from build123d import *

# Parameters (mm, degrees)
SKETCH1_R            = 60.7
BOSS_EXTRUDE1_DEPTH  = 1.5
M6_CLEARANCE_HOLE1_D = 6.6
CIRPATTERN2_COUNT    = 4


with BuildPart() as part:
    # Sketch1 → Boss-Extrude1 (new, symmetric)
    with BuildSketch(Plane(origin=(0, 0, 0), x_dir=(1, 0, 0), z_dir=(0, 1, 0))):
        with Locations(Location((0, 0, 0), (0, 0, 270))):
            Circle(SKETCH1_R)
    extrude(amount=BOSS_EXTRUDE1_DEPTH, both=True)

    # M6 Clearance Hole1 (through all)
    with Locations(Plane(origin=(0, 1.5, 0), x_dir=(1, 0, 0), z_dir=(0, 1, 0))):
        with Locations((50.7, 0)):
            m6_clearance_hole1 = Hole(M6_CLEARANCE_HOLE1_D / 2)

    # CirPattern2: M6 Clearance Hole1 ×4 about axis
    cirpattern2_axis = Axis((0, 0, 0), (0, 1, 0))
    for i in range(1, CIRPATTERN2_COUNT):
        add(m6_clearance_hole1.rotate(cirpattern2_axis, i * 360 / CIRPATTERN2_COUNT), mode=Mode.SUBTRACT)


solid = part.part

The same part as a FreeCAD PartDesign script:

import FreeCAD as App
import Part
import Sketcher

doc = App.newDocument("Part")
body = doc.addObject("PartDesign::Body", "Body")

# Sketch on XZ plane
sketch1 = body.newObject("Sketcher::SketchObject", "Sketch")
sketch1.AttachmentSupport = (doc.getObject("XZ_Plane"), [""])
sketch1.MapMode = "FlatFace"
sketch1.addGeometry(Part.Circle(App.Vector(0, 0, 0), App.Vector(0, 0, 1), 61), False)
sketch1.addConstraint(Sketcher.Constraint("Coincident", 0, 3, -1, 1))
sketch1.addConstraint(Sketcher.Constraint("Diameter", 0, 121.4))
pad1 = body.newObject("PartDesign::Pad", "Pad")
pad1.Profile = sketch1
pad1.Length = 3
pad1.Midplane = True

# Sketch on XZ plane
sketch2 = body.newObject("Sketcher::SketchObject", "Sketch001")
sketch2.AttachmentSupport = (doc.getObject("XZ_Plane"), [""])
sketch2.MapMode = "FlatFace"
sketch2.AttachmentOffset = App.Placement(App.Vector(0, 0, -1.5), App.Rotation())
sketch2.addGeometry(Part.Circle(App.Vector(50.7, 0, 0), App.Vector(0, 0, 1), 3.3), False)
sketch2.addConstraint(Sketcher.Constraint("PointOnObject", 0, 3, -1))
sketch2.addConstraint(Sketcher.Constraint("Diameter", 0, 6.6))
sketch2.addConstraint(Sketcher.Constraint("DistanceX", -1, 1, 0, 3, 50.7))
doc.recompute()
hole = body.newObject("PartDesign::Hole", "Hole")
hole.Profile = sketch2
hole.ThreadType = "None"
hole.Diameter = 6.6
hole.DepthType = "ThroughAll"
hole.Reversed = True
doc.recompute()

polarpattern = body.newObject("PartDesign::PolarPattern", "PolarPattern")
polarpattern.Originals = [hole]
polarpattern.Axis = (doc.getObject("Y_Axis"), [""])
polarpattern.Angle = 360
polarpattern.Occurrences = 4
body.Tip = polarpattern

doc.recompute()
